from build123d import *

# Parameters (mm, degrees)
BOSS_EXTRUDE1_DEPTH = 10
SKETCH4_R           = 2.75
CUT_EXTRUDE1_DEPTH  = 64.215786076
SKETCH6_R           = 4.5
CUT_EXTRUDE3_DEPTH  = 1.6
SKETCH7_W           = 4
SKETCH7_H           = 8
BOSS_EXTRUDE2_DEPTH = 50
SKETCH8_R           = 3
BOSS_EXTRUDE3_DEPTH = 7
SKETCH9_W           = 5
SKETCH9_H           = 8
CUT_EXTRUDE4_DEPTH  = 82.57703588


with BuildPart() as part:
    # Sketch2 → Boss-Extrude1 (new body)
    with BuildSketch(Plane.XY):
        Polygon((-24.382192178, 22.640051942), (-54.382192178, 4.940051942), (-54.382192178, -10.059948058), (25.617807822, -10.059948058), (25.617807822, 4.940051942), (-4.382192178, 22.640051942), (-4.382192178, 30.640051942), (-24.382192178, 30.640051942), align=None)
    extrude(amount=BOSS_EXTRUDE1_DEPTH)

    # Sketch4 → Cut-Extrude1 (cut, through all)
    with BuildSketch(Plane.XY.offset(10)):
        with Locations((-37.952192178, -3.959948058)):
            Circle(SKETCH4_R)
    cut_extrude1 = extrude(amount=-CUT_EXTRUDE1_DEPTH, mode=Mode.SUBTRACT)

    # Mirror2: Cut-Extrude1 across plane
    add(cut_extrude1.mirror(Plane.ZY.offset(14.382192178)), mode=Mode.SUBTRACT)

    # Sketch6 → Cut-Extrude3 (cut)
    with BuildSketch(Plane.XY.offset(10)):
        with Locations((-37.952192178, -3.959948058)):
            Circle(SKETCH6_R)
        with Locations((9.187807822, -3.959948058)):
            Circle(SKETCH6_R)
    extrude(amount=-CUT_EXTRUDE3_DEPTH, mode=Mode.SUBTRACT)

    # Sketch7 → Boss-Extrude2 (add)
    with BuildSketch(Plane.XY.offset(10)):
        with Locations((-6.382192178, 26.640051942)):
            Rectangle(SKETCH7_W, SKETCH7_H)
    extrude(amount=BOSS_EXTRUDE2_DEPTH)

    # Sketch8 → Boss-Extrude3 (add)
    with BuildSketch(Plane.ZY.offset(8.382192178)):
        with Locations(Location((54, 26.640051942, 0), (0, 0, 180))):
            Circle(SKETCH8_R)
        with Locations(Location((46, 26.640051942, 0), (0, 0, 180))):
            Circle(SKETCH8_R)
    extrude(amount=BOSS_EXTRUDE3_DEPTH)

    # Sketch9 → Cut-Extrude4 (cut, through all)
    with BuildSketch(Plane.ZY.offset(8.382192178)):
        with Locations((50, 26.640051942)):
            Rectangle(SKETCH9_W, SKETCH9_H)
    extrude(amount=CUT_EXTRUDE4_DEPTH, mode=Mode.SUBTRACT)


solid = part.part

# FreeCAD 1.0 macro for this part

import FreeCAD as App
import Part
import Sketcher
from FreeCAD import Vector
Q = App.Units.Quantity

doc = App.newDocument("Part")
body = doc.addObject("PartDesign::Body", "Body")

# Sketch on XY plane
sketch1 = doc.addObject("Sketcher::SketchObject", "Sketch")
body.addObject(sketch1)
sketch1.AttachmentSupport = (doc.XY_Plane, [""])
sketch1.MapMode = "FlatFace"
sketch1.addGeometry(Part.LineSegment(Vector(-24.382192, 22.640052, 0), Vector(-54.382192, 4.940052, 0)), False)
sketch1.addGeometry(Part.LineSegment(Vector(-54.382192, 4.940052, 0), Vector(-54.382192, -10.059948, 0)), False)
sketch1.addGeometry(Part.LineSegment(Vector(-54.382192, -10.059948, 0), Vector(25.617808, -10.059948, 0)), False)
sketch1.addGeometry(Part.LineSegment(Vector(25.617808, -10.059948, 0), Vector(25.617808, 4.940052, 0)), False)
sketch1.addGeometry(Part.LineSegment(Vector(25.617808, 4.940052, 0), Vector(-4.382192, 22.640052, 0)), False)
sketch1.addGeometry(Part.LineSegment(Vector(-4.382192, 22.640052, 0), Vector(-4.382192, 30.640052, 0)), False)
sketch1.addGeometry(Part.LineSegment(Vector(-4.382192, 30.640052, 0), Vector(-24.382192, 30.640052, 0)), False)
sketch1.addGeometry(Part.LineSegment(Vector(-24.382192, 30.640052, 0), Vector(-24.382192, 22.640052, 0)), False)
sketch1.addConstraint(Sketcher.Constraint("Coincident", 0, 2, 1, 1))
sketch1.addConstraint(Sketcher.Constraint("Coincident", 1, 2, 2, 1))
sketch1.addConstraint(Sketcher.Constraint("Coincident", 2, 2, 3, 1))
sketch1.addConstraint(Sketcher.Constraint("Coincident", 3, 2, 4, 1))
sketch1.addConstraint(Sketcher.Constraint("Coincident", 4, 2, 5, 1))
sketch1.addConstraint(Sketcher.Constraint("Coincident", 5, 2, 6, 1))
sketch1.addConstraint(Sketcher.Constraint("Coincident", 6, 2, 7, 1))
sketch1.addConstraint(Sketcher.Constraint("Coincident", 7, 2, 0, 1))
sketch1.addConstraint(Sketcher.Constraint("Vertical", 1))
sketch1.addConstraint(Sketcher.Constraint("Horizontal", 2))
sketch1.addConstraint(Sketcher.Constraint("Vertical", 3))
sketch1.addConstraint(Sketcher.Constraint("Vertical", 5))
sketch1.addConstraint(Sketcher.Constraint("Horizontal", 6))
sketch1.addConstraint(Sketcher.Constraint("Vertical", 7))
sketch1.addConstraint(Sketcher.Constraint("Horizontal", 0, 2, 3, 2))
sketch1.addConstraint(Sketcher.Constraint("Horizontal", 4, 2, 7, 2))
sketch1.addConstraint(Sketcher.Constraint("Equal", 0, 4))
sketch1.addConstraint(Sketcher.Constraint("DistanceX", 2, 1, 2, 2, Q("80 mm")))
sketch1.addConstraint(Sketcher.Constraint("DistanceX", 6, 2, 6, 1, Q("20 mm")))
sketch1.addConstraint(Sketcher.Constraint("DistanceY", 1, 2, 1, 1, Q("15 mm")))
sketch1.addConstraint(Sketcher.Constraint("DistanceY", 5, 1, 5, 2, Q("8 mm")))
sketch1.addConstraint(Sketcher.Constraint("DistanceY", 3, 2, 4, 2, Q("17.7 mm")))
sketch1.addConstraint(Sketcher.Constraint("DistanceY", -1, 1, 0, 2, Q("4.940052 mm")))
sketch1.addConstraint(Sketcher.Constraint("DistanceX", 0, 2, -1, 1, Q("54.382192 mm")))
pad1 = doc.addObject("PartDesign::Pad", "Pad")
body.addObject(pad1)
pad1.Profile = sketch1
pad1.Length = 10

# Sketch on XY plane
sketch2 = doc.addObject("Sketcher::SketchObject", "Sketch001")
body.addObject(sketch2)
sketch2.AttachmentSupport = (doc.XY_Plane, [""])
sketch2.MapMode = "FlatFace"
sketch2.AttachmentOffset = App.Placement(Vector(0, 0, 10), App.Rotation())
sketch2.addGeometry(Part.Circle(Vector(-37.952192, -3.959948, 0), Vector(0, 0, 1), 2.75), False)
sketch2.addConstraint(Sketcher.Constraint("Diameter", 0, Q("5.5 mm")))
sketch2.addConstraint(Sketcher.Constraint("DistanceY", 0, 3, -1, 1, Q("3.959948 mm")))
sketch2.addConstraint(Sketcher.Constraint("DistanceX", 0, 3, -1, 1, Q("37.952192 mm")))
pocket1 = doc.addObject("PartDesign::Pocket", "Pocket")
body.addObject(pocket1)
pocket1.Profile = sketch2
pocket1.Type = "ThroughAll"
doc.recompute()

datumplane = doc.addObject("PartDesign::Plane", "DatumPlane")
body.addObject(datumplane)
datumplane.AttachmentSupport = (doc.YZ_Plane, [""])
datumplane.MapMode = "FlatFace"
datumplane.AttachmentOffset = App.Placement(Vector(0, 0, -14.382192), App.Rotation())
mirrored = doc.addObject("PartDesign::Mirrored", "Mirrored")
body.addObject(mirrored)
mirrored.Originals = [pocket1]
mirrored.MirrorPlane = (datumplane, [""])
body.Tip = mirrored

# Sketch on XY plane
sketch3 = doc.addObject("Sketcher::SketchObject", "Sketch002")
body.addObject(sketch3)
sketch3.AttachmentSupport = (doc.XY_Plane, [""])
sketch3.MapMode = "FlatFace"
sketch3.AttachmentOffset = App.Placement(Vector(0, 0, 10), App.Rotation())
sketch3.addGeometry(Part.Circle(Vector(-37.952192, -3.959948, 0), Vector(0, 0, 1), 4.5), False)
sketch3.addGeometry(Part.Circle(Vector(9.187808, -3.959948, 0), Vector(0, 0, 1), 4.5), False)
sketch3.addConstraint(Sketcher.Constraint("Equal", 0, 1))
sketch3.addConstraint(Sketcher.Constraint("Horizontal", 0, 3, 1, 3))
sketch3.addConstraint(Sketcher.Constraint("Diameter", 0, Q("9 mm")))
sketch3.addConstraint(Sketcher.Constraint("DistanceX", 0, 3, 1, 3, Q("47.14 mm")))
sketch3.addConstraint(Sketcher.Constraint("DistanceY", 0, 3, -1, 1, Q("3.959948 mm")))
sketch3.addConstraint(Sketcher.Constraint("DistanceX", 0, 3, -1, 1, Q("37.952192 mm")))
pocket2 = doc.addObject("PartDesign::Pocket", "Pocket001")
body.addObject(pocket2)
pocket2.Profile = sketch3
pocket2.Length = 1.6

# Sketch on XY plane
sketch4 = doc.addObject("Sketcher::SketchObject", "Sketch003")
body.addObject(sketch4)
sketch4.AttachmentSupport = (doc.XY_Plane, [""])
sketch4.MapMode = "FlatFace"
sketch4.AttachmentOffset = App.Placement(Vector(0, 0, 10), App.Rotation())
sketch4.addGeometry(Part.LineSegment(Vector(-8.382192, 30.640052, 0), Vector(-8.382192, 22.640052, 0)), False)
sketch4.addGeometry(Part.LineSegment(Vector(-8.382192, 22.640052, 0), Vector(-4.382192, 22.640052, 0)), False)
sketch4.addGeometry(Part.LineSegment(Vector(-4.382192, 22.640052, 0), Vector(-4.382192, 30.640052, 0)), False)
sketch4.addGeometry(Part.LineSegment(Vector(-4.382192, 30.640052, 0), Vector(-8.382192, 30.640052, 0)), False)
sketch4.addConstraint(Sketcher.Constraint("Coincident", 0, 2, 1, 1))
sketch4.addConstraint(Sketcher.Constraint("Coincident", 1, 2, 2, 1))
sketch4.addConstraint(Sketcher.Constraint("Coincident", 2, 2, 3, 1))
sketch4.addConstraint(Sketcher.Constraint("Coincident", 3, 2, 0, 1))
sketch4.addConstraint(Sketcher.Constraint("Vertical", 0))
sketch4.addConstraint(Sketcher.Constraint("Horizontal", 1))
sketch4.addConstraint(Sketcher.Constraint("Vertical", 2))
sketch4.addConstraint(Sketcher.Constraint("Horizontal", 3))
sketch4.addConstraint(Sketcher.Constraint("DistanceX", 1, 1, 1, 2, Q("4 mm")))
sketch4.addConstraint(Sketcher.Constraint("DistanceY", 0, 2, 0, 1, Q("8 mm")))
sketch4.addConstraint(Sketcher.Constraint("DistanceY", -1, 1, 0, 2, Q("22.640052 mm")))
sketch4.addConstraint(Sketcher.Constraint("DistanceX", 0, 2, -1, 1, Q("8.382192 mm")))
pad2 = doc.addObject("PartDesign::Pad", "Pad001")
body.addObject(pad2)
pad2.Profile = sketch4
pad2.Length = 50

# Sketch on YZ plane
sketch5 = doc.addObject("Sketcher::SketchObject", "Sketch004")
body.addObject(sketch5)
sketch5.AttachmentSupport = (doc.YZ_Plane, [""])
sketch5.MapMode = "FlatFace"
sketch5.AttachmentOffset = App.Placement(Vector(0, 0, -8.382192), App.Rotation())
sketch5.addGeometry(Part.Circle(Vector(26.640052, 54, 0), Vector(0, 0, 1), 3), False)
sketch5.addGeometry(Part.Circle(Vector(26.640052, 46, 0), Vector(0, 0, 1), 3), False)
sketch5.addConstraint(Sketcher.Constraint("Equal", 0, 1))
sketch5.addConstraint(Sketcher.Constraint("Vertical", 0, 3, 1, 3))
sketch5.addConstraint(Sketcher.Constraint("Diameter", 0, Q("6 mm")))
sketch5.addConstraint(Sketcher.Constraint("DistanceY", -1, 1, 0, 3, Q("54 mm")))
sketch5.addConstraint(Sketcher.Constraint("DistanceY", -1, 1, 1, 3, Q("46 mm")))
sketch5.addConstraint(Sketcher.Constraint("DistanceX", -1, 1, 0, 3, Q("26.640052 mm")))
pad3 = doc.addObject("PartDesign::Pad", "Pad002")
body.addObject(pad3)
pad3.Profile = sketch5
pad3.Length = 7
pad3.Reversed = True

# Sketch on YZ plane
sketch6 = doc.addObject("Sketcher::SketchObject", "Sketch005")
body.addObject(sketch6)
sketch6.AttachmentSupport = (doc.YZ_Plane, [""])
sketch6.MapMode = "FlatFace"
sketch6.AttachmentOffset = App.Placement(Vector(0, 0, -8.382192), App.Rotation())
sketch6.addGeometry(Part.LineSegment(Vector(30.640052, 47.5, 0), Vector(22.640052, 47.5, 0)), False)
sketch6.addGeometry(Part.LineSegment(Vector(22.640052, 47.5, 0), Vector(22.640052, 52.5, 0)), False)
sketch6.addGeometry(Part.LineSegment(Vector(22.640052, 52.5, 0), Vector(30.640052, 52.5, 0)), False)
sketch6.addGeometry(Part.LineSegment(Vector(30.640052, 52.5, 0), Vector(30.640052, 47.5, 0)), False)
sketch6.addConstraint(Sketcher.Constraint("Coincident", 0, 2, 1, 1))
sketch6.addConstraint(Sketcher.Constraint("Coincident", 1, 2, 2, 1))
sketch6.addConstraint(Sketcher.Constraint("Coincident", 2, 2, 3, 1))
sketch6.addConstraint(Sketcher.Constraint("Coincident", 3, 2, 0, 1))
sketch6.addConstraint(Sketcher.Constraint("Horizontal", 0))
sketch6.addConstraint(Sketcher.Constraint("Vertical", 1))
sketch6.addConstraint(Sketcher.Constraint("Horizontal", 2))
sketch6.addConstraint(Sketcher.Constraint("Vertical", 3))
sketch6.addConstraint(Sketcher.Constraint("DistanceX", 0, 2, 0, 1, Q("8 mm")))
sketch6.addConstraint(Sketcher.Constraint("DistanceY", 1, 1, 1, 2, Q("5 mm")))
sketch6.addConstraint(Sketcher.Constraint("DistanceY", -1, 1, 0, 2, Q("47.5 mm")))
sketch6.addConstraint(Sketcher.Constraint("DistanceX", -1, 1, 0, 2, Q("22.640052 mm")))
pocket3 = doc.addObject("PartDesign::Pocket", "Pocket002")
body.addObject(pocket3)
pocket3.Profile = sketch6
pocket3.Type = "ThroughAll"

doc.recompute()
